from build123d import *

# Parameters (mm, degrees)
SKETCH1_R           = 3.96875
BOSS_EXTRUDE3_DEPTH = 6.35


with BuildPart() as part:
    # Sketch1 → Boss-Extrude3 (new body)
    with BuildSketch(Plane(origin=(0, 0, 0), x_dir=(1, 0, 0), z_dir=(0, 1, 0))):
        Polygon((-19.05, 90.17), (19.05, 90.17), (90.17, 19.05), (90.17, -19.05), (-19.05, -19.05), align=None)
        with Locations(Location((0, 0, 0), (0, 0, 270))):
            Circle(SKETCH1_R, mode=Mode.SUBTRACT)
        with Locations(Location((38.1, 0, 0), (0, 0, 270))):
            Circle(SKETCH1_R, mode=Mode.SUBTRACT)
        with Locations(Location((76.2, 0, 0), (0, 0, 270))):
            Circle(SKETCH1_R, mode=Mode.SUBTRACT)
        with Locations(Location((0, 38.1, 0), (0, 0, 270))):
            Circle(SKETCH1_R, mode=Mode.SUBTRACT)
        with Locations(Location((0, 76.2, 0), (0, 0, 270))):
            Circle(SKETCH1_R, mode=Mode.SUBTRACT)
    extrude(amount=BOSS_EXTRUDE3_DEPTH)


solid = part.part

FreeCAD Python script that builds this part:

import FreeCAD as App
import Part
import Sketcher
from FreeCAD import Vector
Q = App.Units.Quantity

doc = App.newDocument("Part")
body = doc.addObject("PartDesign::Body", "Body")

sketch1 = body.newObject("Sketcher::SketchObject", "Sketch")
sketch1.AttachmentSupport = (doc.getObject("XZ_Plane"), [""])
sketch1.MapMode = "FlatFace"
sketch1.addGeometry(Part.LineSegment(Vector(19.05, -90.17, 0), Vector(-19.05, -90.17, 0)), False)
sketch1.addGeometry(Part.LineSegment(Vector(-19.05, -90.17, 0), Vector(-19.05, 19.05, 0)), False)
sketch1.addGeometry(Part.LineSegment(Vector(-19.05, 19.05, 0), Vector(90.17, 19.05, 0)), False)
sketch1.addGeometry(Part.LineSegment(Vector(90.17, 19.05, 0), Vector(90.17, -19.05, 0)), False)
sketch1.addGeometry(Part.LineSegment(Vector(90.17, -19.05, 0), Vector(19.05, -90.17, 0)), False)
sketch1.addGeometry(Part.Circle(Vector(76.2, 0, 0), Vector(0, 0, 1), 3.96875), False)
sketch1.addGeometry(Part.Circle(Vector(38.1, 0, 0), Vector(0, 0, 1), 3.96875), False)
sketch1.addGeometry(Part.Circle(Vector(0, 0, 0), Vector(0, 0, 1), 3.96875), False)
sketch1.addGeometry(Part.Circle(Vector(0, -38.1, 0), Vector(0, 0, 1), 3.96875), False)
sketch1.addGeometry(Part.Circle(Vector(0, -76.2, 0), Vector(0, 0, 1), 3.96875), False)
sketch1.addConstraint(Sketcher.Constraint("Coincident", 0, 2, 1, 1))
sketch1.addConstraint(Sketcher.Constraint("Coincident", 1, 2, 2, 1))
sketch1.addConstraint(Sketcher.Constraint("Coincident", 2, 2, 3, 1))
sketch1.addConstraint(Sketcher.Constraint("Coincident", 3, 2, 4, 1))
sketch1.addConstraint(Sketcher.Constraint("Coincident", 4, 2, 0, 1))
sketch1.addConstraint(Sketcher.Constraint("Horizontal", 0))
sketch1.addConstraint(Sketcher.Constraint("Vertical", 1))
sketch1.addConstraint(Sketcher.Constraint("Horizontal", 2))
sketch1.addConstraint(Sketcher.Constraint("Vertical", 3))
sketch1.addConstraint(Sketcher.Constraint("Coincident", 7, 3, -1, 1))
sketch1.addConstraint(Sketcher.Constraint("Equal", 5, 6))
sketch1.addConstraint(Sketcher.Constraint("Equal", 6, 7))
sketch1.addConstraint(Sketcher.Constraint("Equal", 7, 8))
sketch1.addConstraint(Sketcher.Constraint("Equal", 8, 9))
sketch1.addConstraint(Sketcher.Constraint("PointOnObject", 5, 3, -1))
sketch1.addConstraint(Sketcher.Constraint("PointOnObject", 6, 3, -1))
sketch1.addConstraint(Sketcher.Constraint("PointOnObject", 8, 3, -2))
sketch1.addConstraint(Sketcher.Constraint("PointOnObject", 9, 3, -2))
sketch1.addConstraint(Sketcher.Constraint("Equal", 2, 1))
sketch1.addConstraint(Sketcher.Constraint("Equal", 0, 3))
sketch1.addConstraint(Sketcher.Constraint("Diameter", 5, Q("0.3125 in")))
sketch1.addConstraint(Sketcher.Constraint("DistanceX", 0, 2, 0, 1, Q("1.5 in")))
sketch1.addConstraint(Sketcher.Constraint("DistanceX", 2, 1, 2, 2, Q("4.3 in")))
sketch1.addConstraint(Sketcher.Constraint("DistanceX", -1, 1, 5, 3, Q("3 in")))
sketch1.addConstraint(Sketcher.Constraint("DistanceY", 9, 3, -1, 1, Q("3 in")))
sketch1.addConstraint(Sketcher.Constraint("DistanceX", -1, 1, 6, 3, Q("1.5 in")))
sketch1.addConstraint(Sketcher.Constraint("DistanceY", 8, 3, -1, 1, Q("1.5 in")))
sketch1.addConstraint(Sketcher.Constraint("DistanceX", 0, 2, -1, 1, Q("0.75 in")))
sketch1.addConstraint(Sketcher.Constraint("DistanceY", 0, 2, -1, 1, Q("3.55 in")))
pad1 = body.newObject("PartDesign::Pad", "Pad")
pad1.Profile = sketch1
pad1.Length = Q("0.25 in")
pad1.Reversed = True

doc.recompute()
